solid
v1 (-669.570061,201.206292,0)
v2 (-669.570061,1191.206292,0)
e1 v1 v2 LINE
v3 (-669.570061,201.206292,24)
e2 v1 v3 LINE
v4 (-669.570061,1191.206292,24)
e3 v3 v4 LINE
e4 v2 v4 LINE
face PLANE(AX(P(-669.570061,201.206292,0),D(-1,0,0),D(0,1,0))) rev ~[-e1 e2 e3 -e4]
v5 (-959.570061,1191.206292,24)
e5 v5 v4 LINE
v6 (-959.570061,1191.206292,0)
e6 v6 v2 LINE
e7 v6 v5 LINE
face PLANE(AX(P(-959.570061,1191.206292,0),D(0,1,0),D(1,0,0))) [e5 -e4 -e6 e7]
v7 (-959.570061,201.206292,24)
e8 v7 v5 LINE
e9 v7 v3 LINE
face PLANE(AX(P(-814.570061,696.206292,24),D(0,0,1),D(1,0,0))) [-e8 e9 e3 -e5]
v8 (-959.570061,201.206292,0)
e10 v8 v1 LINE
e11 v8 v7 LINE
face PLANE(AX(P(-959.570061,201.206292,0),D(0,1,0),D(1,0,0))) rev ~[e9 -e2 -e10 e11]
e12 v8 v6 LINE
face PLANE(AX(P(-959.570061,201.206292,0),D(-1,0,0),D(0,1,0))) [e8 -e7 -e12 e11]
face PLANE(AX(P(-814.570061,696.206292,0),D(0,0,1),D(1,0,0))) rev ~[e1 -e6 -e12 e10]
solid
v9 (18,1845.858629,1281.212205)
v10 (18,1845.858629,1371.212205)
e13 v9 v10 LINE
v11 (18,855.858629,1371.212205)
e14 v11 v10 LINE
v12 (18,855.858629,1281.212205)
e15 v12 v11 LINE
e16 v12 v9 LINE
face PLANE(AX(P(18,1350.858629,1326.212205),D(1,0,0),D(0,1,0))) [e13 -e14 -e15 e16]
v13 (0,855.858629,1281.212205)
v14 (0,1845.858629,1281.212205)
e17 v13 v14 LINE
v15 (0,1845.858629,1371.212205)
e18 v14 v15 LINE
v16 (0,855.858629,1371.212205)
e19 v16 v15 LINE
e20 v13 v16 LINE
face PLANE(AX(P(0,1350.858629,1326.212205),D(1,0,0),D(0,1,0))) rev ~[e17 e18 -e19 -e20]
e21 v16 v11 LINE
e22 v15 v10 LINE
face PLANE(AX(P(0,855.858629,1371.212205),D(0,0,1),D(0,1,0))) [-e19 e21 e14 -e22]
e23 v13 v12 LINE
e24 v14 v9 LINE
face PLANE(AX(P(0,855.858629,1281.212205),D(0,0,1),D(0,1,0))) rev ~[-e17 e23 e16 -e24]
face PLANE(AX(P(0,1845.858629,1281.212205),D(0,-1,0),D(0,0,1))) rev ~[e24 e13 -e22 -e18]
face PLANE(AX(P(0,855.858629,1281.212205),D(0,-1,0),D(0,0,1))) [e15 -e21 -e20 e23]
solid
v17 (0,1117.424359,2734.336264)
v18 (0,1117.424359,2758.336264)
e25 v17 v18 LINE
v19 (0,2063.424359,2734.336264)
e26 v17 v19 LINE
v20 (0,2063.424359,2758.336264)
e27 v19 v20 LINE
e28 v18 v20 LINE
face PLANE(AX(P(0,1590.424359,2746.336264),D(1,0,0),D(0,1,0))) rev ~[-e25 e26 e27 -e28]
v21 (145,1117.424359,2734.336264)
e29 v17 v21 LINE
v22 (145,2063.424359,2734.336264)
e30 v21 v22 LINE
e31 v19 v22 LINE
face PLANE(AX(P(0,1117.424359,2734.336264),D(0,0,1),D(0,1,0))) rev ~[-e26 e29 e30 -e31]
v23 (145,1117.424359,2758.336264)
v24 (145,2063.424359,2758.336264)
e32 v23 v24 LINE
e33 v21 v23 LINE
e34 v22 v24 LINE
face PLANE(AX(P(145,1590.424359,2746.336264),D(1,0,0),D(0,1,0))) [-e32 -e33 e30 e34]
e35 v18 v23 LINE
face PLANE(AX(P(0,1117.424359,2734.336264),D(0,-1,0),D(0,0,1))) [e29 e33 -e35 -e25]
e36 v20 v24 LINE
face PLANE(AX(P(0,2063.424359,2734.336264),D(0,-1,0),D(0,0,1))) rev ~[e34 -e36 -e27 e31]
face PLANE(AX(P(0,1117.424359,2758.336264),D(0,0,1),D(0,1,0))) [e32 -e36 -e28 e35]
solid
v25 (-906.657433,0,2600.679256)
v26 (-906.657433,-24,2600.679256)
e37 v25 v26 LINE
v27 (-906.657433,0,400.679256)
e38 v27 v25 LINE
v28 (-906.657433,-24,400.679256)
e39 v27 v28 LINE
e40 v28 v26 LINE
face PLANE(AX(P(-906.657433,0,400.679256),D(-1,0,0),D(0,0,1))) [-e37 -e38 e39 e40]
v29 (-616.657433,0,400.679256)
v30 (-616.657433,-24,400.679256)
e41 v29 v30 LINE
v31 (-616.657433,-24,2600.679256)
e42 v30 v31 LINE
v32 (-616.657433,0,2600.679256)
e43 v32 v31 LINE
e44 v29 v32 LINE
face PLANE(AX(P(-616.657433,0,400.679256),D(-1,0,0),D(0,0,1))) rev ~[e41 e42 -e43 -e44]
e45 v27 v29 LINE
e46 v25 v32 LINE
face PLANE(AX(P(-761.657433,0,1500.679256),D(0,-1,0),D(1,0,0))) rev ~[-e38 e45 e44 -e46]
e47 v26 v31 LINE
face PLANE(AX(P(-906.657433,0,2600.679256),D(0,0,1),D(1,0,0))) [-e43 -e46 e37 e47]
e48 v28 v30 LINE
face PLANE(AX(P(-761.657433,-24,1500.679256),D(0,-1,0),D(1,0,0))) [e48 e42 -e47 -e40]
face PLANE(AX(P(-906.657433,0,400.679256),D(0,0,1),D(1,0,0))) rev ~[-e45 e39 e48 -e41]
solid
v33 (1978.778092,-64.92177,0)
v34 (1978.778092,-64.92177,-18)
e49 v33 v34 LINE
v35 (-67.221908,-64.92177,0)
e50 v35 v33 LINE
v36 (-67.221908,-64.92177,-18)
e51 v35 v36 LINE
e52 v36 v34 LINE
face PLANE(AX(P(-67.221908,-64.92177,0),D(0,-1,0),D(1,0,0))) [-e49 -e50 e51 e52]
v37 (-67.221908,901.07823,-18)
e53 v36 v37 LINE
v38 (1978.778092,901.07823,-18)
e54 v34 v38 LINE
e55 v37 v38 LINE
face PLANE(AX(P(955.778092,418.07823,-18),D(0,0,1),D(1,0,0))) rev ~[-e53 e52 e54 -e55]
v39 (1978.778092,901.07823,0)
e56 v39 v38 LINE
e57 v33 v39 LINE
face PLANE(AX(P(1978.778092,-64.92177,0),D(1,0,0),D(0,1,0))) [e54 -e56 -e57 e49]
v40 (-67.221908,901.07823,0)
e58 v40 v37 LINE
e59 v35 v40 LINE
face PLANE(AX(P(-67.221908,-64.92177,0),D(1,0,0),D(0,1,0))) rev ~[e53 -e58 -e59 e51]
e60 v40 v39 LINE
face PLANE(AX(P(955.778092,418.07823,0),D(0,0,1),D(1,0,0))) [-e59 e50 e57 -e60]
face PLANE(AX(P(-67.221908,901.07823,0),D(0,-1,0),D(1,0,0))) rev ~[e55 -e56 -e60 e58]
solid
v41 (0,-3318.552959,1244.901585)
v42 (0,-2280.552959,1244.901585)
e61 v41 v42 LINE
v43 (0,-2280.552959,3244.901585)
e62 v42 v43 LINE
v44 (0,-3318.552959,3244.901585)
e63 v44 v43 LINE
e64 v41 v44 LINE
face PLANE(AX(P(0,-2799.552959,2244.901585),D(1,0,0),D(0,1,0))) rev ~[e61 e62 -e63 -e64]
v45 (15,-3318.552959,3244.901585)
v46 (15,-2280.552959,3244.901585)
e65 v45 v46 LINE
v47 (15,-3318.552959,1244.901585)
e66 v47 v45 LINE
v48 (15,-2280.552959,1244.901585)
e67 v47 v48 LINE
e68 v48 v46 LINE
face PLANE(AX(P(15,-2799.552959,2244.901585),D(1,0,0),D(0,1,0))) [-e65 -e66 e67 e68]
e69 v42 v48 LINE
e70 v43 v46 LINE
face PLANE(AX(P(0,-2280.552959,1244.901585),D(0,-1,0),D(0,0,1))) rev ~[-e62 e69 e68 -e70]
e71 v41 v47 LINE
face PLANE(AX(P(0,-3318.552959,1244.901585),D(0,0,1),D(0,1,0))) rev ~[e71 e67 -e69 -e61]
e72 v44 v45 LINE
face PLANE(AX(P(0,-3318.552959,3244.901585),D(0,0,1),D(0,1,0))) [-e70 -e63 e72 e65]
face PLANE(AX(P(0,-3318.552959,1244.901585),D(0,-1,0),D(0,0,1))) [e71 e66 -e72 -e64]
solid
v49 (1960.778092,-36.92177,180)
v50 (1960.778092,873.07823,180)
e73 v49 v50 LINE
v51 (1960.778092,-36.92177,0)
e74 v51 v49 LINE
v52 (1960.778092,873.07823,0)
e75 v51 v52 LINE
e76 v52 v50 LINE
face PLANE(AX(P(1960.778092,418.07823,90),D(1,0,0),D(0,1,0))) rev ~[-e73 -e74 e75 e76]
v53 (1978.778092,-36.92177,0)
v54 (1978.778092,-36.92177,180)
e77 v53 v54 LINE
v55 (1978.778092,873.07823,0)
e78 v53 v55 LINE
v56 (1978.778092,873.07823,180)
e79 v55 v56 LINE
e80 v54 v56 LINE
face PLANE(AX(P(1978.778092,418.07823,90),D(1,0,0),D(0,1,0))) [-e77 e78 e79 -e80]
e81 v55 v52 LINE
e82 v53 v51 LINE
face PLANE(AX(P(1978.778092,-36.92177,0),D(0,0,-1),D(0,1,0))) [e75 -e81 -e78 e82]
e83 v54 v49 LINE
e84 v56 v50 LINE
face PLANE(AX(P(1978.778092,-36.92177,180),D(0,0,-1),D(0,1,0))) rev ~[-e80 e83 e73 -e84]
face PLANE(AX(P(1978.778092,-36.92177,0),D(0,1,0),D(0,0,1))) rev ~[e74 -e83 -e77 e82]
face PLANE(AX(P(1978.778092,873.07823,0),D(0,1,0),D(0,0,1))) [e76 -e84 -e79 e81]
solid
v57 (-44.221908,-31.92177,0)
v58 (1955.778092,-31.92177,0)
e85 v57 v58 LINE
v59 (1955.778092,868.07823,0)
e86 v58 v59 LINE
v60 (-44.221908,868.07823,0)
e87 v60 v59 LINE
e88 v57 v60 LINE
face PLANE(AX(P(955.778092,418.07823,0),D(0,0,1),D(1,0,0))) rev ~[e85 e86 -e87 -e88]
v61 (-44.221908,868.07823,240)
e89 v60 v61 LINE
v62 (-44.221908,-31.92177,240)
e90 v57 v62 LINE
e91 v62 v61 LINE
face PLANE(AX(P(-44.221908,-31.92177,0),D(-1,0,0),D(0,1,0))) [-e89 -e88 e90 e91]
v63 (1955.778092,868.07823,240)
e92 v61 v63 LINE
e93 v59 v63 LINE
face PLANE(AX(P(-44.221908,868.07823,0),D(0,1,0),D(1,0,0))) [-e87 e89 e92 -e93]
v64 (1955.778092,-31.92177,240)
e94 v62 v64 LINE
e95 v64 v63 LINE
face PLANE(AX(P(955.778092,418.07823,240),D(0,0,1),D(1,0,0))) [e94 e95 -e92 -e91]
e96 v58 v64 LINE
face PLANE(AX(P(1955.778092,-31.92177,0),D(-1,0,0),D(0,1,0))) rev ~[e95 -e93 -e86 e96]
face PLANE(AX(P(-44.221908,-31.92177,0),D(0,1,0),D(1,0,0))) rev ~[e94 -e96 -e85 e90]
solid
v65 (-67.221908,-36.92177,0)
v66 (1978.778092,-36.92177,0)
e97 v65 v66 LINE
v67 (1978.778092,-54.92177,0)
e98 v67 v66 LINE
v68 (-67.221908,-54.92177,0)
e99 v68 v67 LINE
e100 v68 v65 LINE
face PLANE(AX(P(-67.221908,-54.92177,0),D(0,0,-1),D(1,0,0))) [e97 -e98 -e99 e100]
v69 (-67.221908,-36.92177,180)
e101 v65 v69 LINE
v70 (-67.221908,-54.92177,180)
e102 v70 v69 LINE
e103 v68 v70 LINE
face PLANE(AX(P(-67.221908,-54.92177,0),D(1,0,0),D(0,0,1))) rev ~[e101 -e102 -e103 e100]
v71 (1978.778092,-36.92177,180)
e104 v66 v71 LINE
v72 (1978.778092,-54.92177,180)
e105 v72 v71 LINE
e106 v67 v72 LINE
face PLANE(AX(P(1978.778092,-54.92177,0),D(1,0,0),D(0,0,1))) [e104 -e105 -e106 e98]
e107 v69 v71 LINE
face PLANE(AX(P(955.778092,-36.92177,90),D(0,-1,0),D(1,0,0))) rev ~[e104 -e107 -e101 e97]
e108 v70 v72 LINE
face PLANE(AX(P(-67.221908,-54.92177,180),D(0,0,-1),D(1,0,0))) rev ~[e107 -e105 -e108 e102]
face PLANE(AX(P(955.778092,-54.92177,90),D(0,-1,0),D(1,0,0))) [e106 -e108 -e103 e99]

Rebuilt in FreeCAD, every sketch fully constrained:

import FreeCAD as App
import Part
import Sketcher
from FreeCAD import Vector
Q = App.Units.Quantity

doc = App.newDocument("Part")
body = doc.addObject("PartDesign::Body", "Body")

sketch1 = body.newObject("Sketcher::SketchObject", "Sketch")
sketch1.AttachmentSupport = (doc.getObject("XY_Plane"), [""])
sketch1.MapMode = "FlatFace"
sketch1.addGeometry([
    Part.LineSegment(Vector(-44, 868, 0), Vector(-44, -32, 0)),
    Part.LineSegment(Vector(-44, -32, 0), Vector(1956, -32, 0)),
    Part.LineSegment(Vector(1956, -32, 0), Vector(1956, 868, 0)),
    Part.LineSegment(Vector(1956, 868, 0), Vector(-44, 868, 0)),
], False)
sketch1.addConstraint([
    Sketcher.Constraint("Coincident", 0, 2, 1, 1),
    Sketcher.Constraint("Coincident", 1, 2, 2, 1),
    Sketcher.Constraint("Coincident", 2, 2, 3, 1),
    Sketcher.Constraint("Coincident", 3, 2, 0, 1),
    Sketcher.Constraint("Vertical", 0),
    Sketcher.Constraint("Horizontal", 1),
    Sketcher.Constraint("Vertical", 2),
    Sketcher.Constraint("Horizontal", 3),
    Sketcher.Constraint("DistanceX", 1, 1, 1, 2, Q("2000 mm")),
    Sketcher.Constraint("DistanceY", 0, 2, 0, 1, Q("900 mm")),
    Sketcher.Constraint("DistanceY", 0, 2, -1, 1, Q("31.92177 mm")),
    Sketcher.Constraint("DistanceX", 0, 2, -1, 1, Q("44.221908 mm")),
])
pad1 = body.newObject("PartDesign::Pad", "Pad")
pad1.Profile = sketch1
pad1.Length = 240
body2 = doc.addObject("PartDesign::Body", "Body001")

sketch2 = body2.newObject("Sketcher::SketchObject", "Sketch001")
sketch2.AttachmentSupport = (doc.getObject("XY_Plane001"), [""])
sketch2.MapMode = "FlatFace"
sketch2.addGeometry([
    Part.LineSegment(Vector(-67, 901, 0), Vector(-67, -65, 0)),
    Part.LineSegment(Vector(-67, -65, 0), Vector(1979, -65, 0)),
    Part.LineSegment(Vector(1979, -65, 0), Vector(1979, 901, 0)),
    Part.LineSegment(Vector(1979, 901, 0), Vector(-67, 901, 0)),
], False)
sketch2.addConstraint([
    Sketcher.Constraint("Coincident", 0, 2, 1, 1),
    Sketcher.Constraint("Coincident", 1, 2, 2, 1),
    Sketcher.Constraint("Coincident", 2, 2, 3, 1),
    Sketcher.Constraint("Coincident", 3, 2, 0, 1),
    Sketcher.Constraint("Vertical", 0),
    Sketcher.Constraint("Horizontal", 1),
    Sketcher.Constraint("Vertical", 2),
    Sketcher.Constraint("Horizontal", 3),
    Sketcher.Constraint("DistanceX", 1, 1, 1, 2, Q("2046 mm")),
    Sketcher.Constraint("DistanceY", 0, 2, 0, 1, Q("966 mm")),
    Sketcher.Constraint("DistanceY", 0, 2, -1, 1, Q("64.92177 mm")),
    Sketcher.Constraint("DistanceX", 0, 2, -1, 1, Q("67.221908 mm")),
])
pad2 = body2.newObject("PartDesign::Pad", "Pad001")
pad2.Profile = sketch2
pad2.Length = 18
pad2.Reversed = True
body3 = doc.addObject("PartDesign::Body", "Body002")

sketch3 = body3.newObject("Sketcher::SketchObject", "Sketch002")
sketch3.AttachmentSupport = (doc.getObject("XZ_Plane002"), [""])
sketch3.MapMode = "FlatFace"
sketch3.AttachmentOffset = App.Placement(Vector(0, 0, 54.92177), App.Rotation())
sketch3.addGeometry([
    Part.LineSegment(Vector(-67, 180, 0), Vector(-67, 0, 0)),
    Part.LineSegment(Vector(-67, 0, 0), Vector(1979, 0, 0)),
    Part.LineSegment(Vector(1979, 0, 0), Vector(1979, 180, 0)),
    Part.LineSegment(Vector(1979, 180, 0), Vector(-67, 180, 0)),
], False)
sketch3.addConstraint([
    Sketcher.Constraint("Coincident", 0, 2, 1, 1),
    Sketcher.Constraint("Coincident", 1, 2, 2, 1),
    Sketcher.Constraint("Coincident", 2, 2, 3, 1),
    Sketcher.Constraint("Coincident", 3, 2, 0, 1),
    Sketcher.Constraint("Vertical", 0),
    Sketcher.Constraint("Horizontal", 1),
    Sketcher.Constraint("Vertical", 2),
    Sketcher.Constraint("Horizontal", 3),
    Sketcher.Constraint("PointOnObject", 0, 2, -1),
    Sketcher.Constraint("DistanceX", 1, 1, 1, 2, Q("2046 mm")),
    Sketcher.Constraint("DistanceY", 0, 2, 0, 1, Q("180 mm")),
    Sketcher.Constraint("DistanceX", 0, 2, -1, 1, Q("67.221908 mm")),
])
pad3 = body3.newObject("PartDesign::Pad", "Pad002")
pad3.Profile = sketch3
pad3.Length = 18
pad3.Reversed = True
body4 = doc.addObject("PartDesign::Body", "Body003")

sketch4 = body4.newObject("Sketcher::SketchObject", "Sketch003")
sketch4.AttachmentSupport = (doc.getObject("YZ_Plane003"), [""])
sketch4.MapMode = "FlatFace"
sketch4.AttachmentOffset = App.Placement(Vector(0, 0, 1978.778092), App.Rotation())
sketch4.addGeometry([
    Part.LineSegment(Vector(-37, 180, 0), Vector(-37, 0, 0)),
    Part.LineSegment(Vector(-37, 0, 0), Vector(873, 0, 0)),
    Part.LineSegment(Vector(873, 0, 0), Vector(873, 180, 0)),
    Part.LineSegment(Vector(873, 180, 0), Vector(-37, 180, 0)),
], False)
sketch4.addConstraint([
    Sketcher.Constraint("Coincident", 0, 2, 1, 1),
    Sketcher.Constraint("Coincident", 1, 2, 2, 1),
    Sketcher.Constraint("Coincident", 2, 2, 3, 1),
    Sketcher.Constraint("Coincident", 3, 2, 0, 1),
    Sketcher.Constraint("Vertical", 0),
    Sketcher.Constraint("Horizontal", 1),
    Sketcher.Constraint("Vertical", 2),
    Sketcher.Constraint("Horizontal", 3),
    Sketcher.Constraint("PointOnObject", 0, 2, -1),
    Sketcher.Constraint("DistanceX", 1, 1, 1, 2, Q("910 mm")),
    Sketcher.Constraint("DistanceY", 0, 2, 0, 1, Q("180 mm")),
    Sketcher.Constraint("DistanceX", 0, 2, -1, 1, Q("36.92177 mm")),
])
pad4 = body4.newObject("PartDesign::Pad", "Pad003")
pad4.Profile = sketch4
pad4.Length = 18
pad4.Reversed = True
body5 = doc.addObject("PartDesign::Body", "Body004")

sketch5 = body5.newObject("Sketcher::SketchObject", "Sketch004")
sketch5.AttachmentSupport = (doc.getObject("XZ_Plane004"), [""])
sketch5.MapMode = "FlatFace"
sketch5.addGeometry([
    Part.LineSegment(Vector(-907, 2601, 0), Vector(-907, 401, 0)),
    Part.LineSegment(Vector(-907, 401, 0), Vector(-617, 401, 0)),
    Part.LineSegment(Vector(-617, 401, 0), Vector(-617, 2601, 0)),
    Part.LineSegment(Vector(-617, 2601, 0), Vector(-907, 2601, 0)),
], False)
sketch5.addConstraint([
    Sketcher.Constraint("Coincident", 0, 2, 1, 1),
    Sketcher.Constraint("Coincident", 1, 2, 2, 1),
    Sketcher.Constraint("Coincident", 2, 2, 3, 1),
    Sketcher.Constraint("Coincident", 3, 2, 0, 1),
    Sketcher.Constraint("Vertical", 0),
    Sketcher.Constraint("Horizontal", 1),
    Sketcher.Constraint("Vertical", 2),
    Sketcher.Constraint("Horizontal", 3),
    Sketcher.Constraint("DistanceX", 1, 1, 1, 2, Q("290 mm")),
    Sketcher.Constraint("DistanceY", 0, 2, 0, 1, Q("2200 mm")),
    Sketcher.Constraint("DistanceX", 0, 2, -1, 1, Q("906.657433 mm")),
    Sketcher.Constraint("DistanceY", -1, 1, 0, 2, Q("400.679256 mm")),
])
pad5 = body5.newObject("PartDesign::Pad", "Pad004")
pad5.Profile = sketch5
pad5.Length = 24
body6 = doc.addObject("PartDesign::Body", "Body005")

sketch6 = body6.newObject("Sketcher::SketchObject", "Sketch005")
sketch6.AttachmentSupport = (doc.getObject("XY_Plane005"), [""])
sketch6.MapMode = "FlatFace"
sketch6.addGeometry([
    Part.LineSegment(Vector(-960, 1191, 0), Vector(-960, 201, 0)),
    Part.LineSegment(Vector(-960, 201, 0), Vector(-670, 201, 0)),
    Part.LineSegment(Vector(-670, 201, 0), Vector(-670, 1191, 0)),
    Part.LineSegment(Vector(-670, 1191, 0), Vector(-960, 1191, 0)),
], False)
sketch6.addConstraint([
    Sketcher.Constraint("Coincident", 0, 2, 1, 1),
    Sketcher.Constraint("Coincident", 1, 2, 2, 1),
    Sketcher.Constraint("Coincident", 2, 2, 3, 1),
    Sketcher.Constraint("Coincident", 3, 2, 0, 1),
    Sketcher.Constraint("Vertical", 0),
    Sketcher.Constraint("Horizontal", 1),
    Sketcher.Constraint("Vertical", 2),
    Sketcher.Constraint("Horizontal", 3),
    Sketcher.Constraint("DistanceX", 1, 1, 1, 2, Q("290 mm")),
    Sketcher.Constraint("DistanceY", 0, 2, 0, 1, Q("990 mm")),
    Sketcher.Constraint("DistanceX", 0, 2, -1, 1, Q("959.570061 mm")),
    Sketcher.Constraint("DistanceY", -1, 1, 0, 2, Q("201.206292 mm")),
])
pad6 = body6.newObject("PartDesign::Pad", "Pad005")
pad6.Profile = sketch6
pad6.Length = 24
body7 = doc.addObject("PartDesign::Body", "Body006")

sketch7 = body7.newObject("Sketcher::SketchObject", "Sketch006")
sketch7.AttachmentSupport = (doc.getObject("YZ_Plane006"), [""])
sketch7.MapMode = "FlatFace"
sketch7.addGeometry([
    Part.LineSegment(Vector(856, 1371, 0), Vector(856, 1281, 0)),
    Part.LineSegment(Vector(856, 1281, 0), Vector(1846, 1281, 0)),
    Part.LineSegment(Vector(1846, 1281, 0), Vector(1846, 1371, 0)),
    Part.LineSegment(Vector(1846, 1371, 0), Vector(856, 1371, 0)),
], False)
sketch7.addConstraint([
    Sketcher.Constraint("Coincident", 0, 2, 1, 1),
    Sketcher.Constraint("Coincident", 1, 2, 2, 1),
    Sketcher.Constraint("Coincident", 2, 2, 3, 1),
    Sketcher.Constraint("Coincident", 3, 2, 0, 1),
    Sketcher.Constraint("Vertical", 0),
    Sketcher.Constraint("Horizontal", 1),
    Sketcher.Constraint("Vertical", 2),
    Sketcher.Constraint("Horizontal", 3),
    Sketcher.Constraint("DistanceX", 1, 1, 1, 2, Q("990 mm")),
    Sketcher.Constraint("DistanceY", 0, 2, 0, 1, Q("90 mm")),
    Sketcher.Constraint("DistanceX", -1, 1, 0, 2, Q("855.858629 mm")),
    Sketcher.Constraint("DistanceY", -1, 1, 0, 2, Q("1281.212205 mm")),
])
pad7 = body7.newObject("PartDesign::Pad", "Pad006")
pad7.Profile = sketch7
pad7.Length = 18
body8 = doc.addObject("PartDesign::Body", "Body007")

sketch8 = body8.newObject("Sketcher::SketchObject", "Sketch007")
sketch8.AttachmentSupport = (doc.getObject("YZ_Plane007"), [""])
sketch8.MapMode = "FlatFace"
sketch8.addGeometry([
    Part.LineSegment(Vector(1117, 2758, 0), Vector(1117, 2734, 0)),
    Part.LineSegment(Vector(1117, 2734, 0), Vector(2063, 2734, 0)),
    Part.LineSegment(Vector(2063, 2734, 0), Vector(2063, 2758, 0)),
    Part.LineSegment(Vector(2063, 2758, 0), Vector(1117, 2758, 0)),
], False)
sketch8.addConstraint([
    Sketcher.Constraint("Coincident", 0, 2, 1, 1),
    Sketcher.Constraint("Coincident", 1, 2, 2, 1),
    Sketcher.Constraint("Coincident", 2, 2, 3, 1),
    Sketcher.Constraint("Coincident", 3, 2, 0, 1),
    Sketcher.Constraint("Vertical", 0),
    Sketcher.Constraint("Horizontal", 1),
    Sketcher.Constraint("Vertical", 2),
    Sketcher.Constraint("Horizontal", 3),
    Sketcher.Constraint("DistanceX", 1, 1, 1, 2, Q("946 mm")),
    Sketcher.Constraint("DistanceY", 0, 2, 0, 1, Q("24 mm")),
    Sketcher.Constraint("DistanceX", -1, 1, 0, 2, Q("1117.424359 mm")),
    Sketcher.Constraint("DistanceY", -1, 1, 0, 2, Q("2734.336264 mm")),
])
pad8 = body8.newObject("PartDesign::Pad", "Pad007")
pad8.Profile = sketch8
pad8.Length = 145
body9 = doc.addObject("PartDesign::Body", "Body008")

sketch9 = body9.newObject("Sketcher::SketchObject", "Sketch008")
sketch9.AttachmentSupport = (doc.getObject("YZ_Plane008"), [""])
sketch9.MapMode = "FlatFace"
sketch9.addGeometry([
    Part.LineSegment(Vector(-3319, 3245, 0), Vector(-3319, 1245, 0)),
    Part.LineSegment(Vector(-3319, 1245, 0), Vector(-2281, 1245, 0)),
    Part.LineSegment(Vector(-2281, 1245, 0), Vector(-2281, 3245, 0)),
    Part.LineSegment(Vector(-2281, 3245, 0), Vector(-3319, 3245, 0)),
], False)
sketch9.addConstraint([
    Sketcher.Constraint("Coincident", 0, 2, 1, 1),
    Sketcher.Constraint("Coincident", 1, 2, 2, 1),
    Sketcher.Constraint("Coincident", 2, 2, 3, 1),
    Sketcher.Constraint("Coincident", 3, 2, 0, 1),
    Sketcher.Constraint("Vertical", 0),
    Sketcher.Constraint("Horizontal", 1),
    Sketcher.Constraint("Vertical", 2),
    Sketcher.Constraint("Horizontal", 3),
    Sketcher.Constraint("DistanceX", 1, 1, 1, 2, Q("1038 mm")),
    Sketcher.Constraint("DistanceY", 0, 2, 0, 1, Q("2000 mm")),
    Sketcher.Constraint("DistanceX", 0, 2, -1, 1, Q("3318.552959 mm")),
    Sketcher.Constraint("DistanceY", -1, 1, 0, 2, Q("1244.901585 mm")),
])
pad9 = body9.newObject("PartDesign::Pad", "Pad008")
pad9.Profile = sketch9
pad9.Length = 15

doc.recompute()
